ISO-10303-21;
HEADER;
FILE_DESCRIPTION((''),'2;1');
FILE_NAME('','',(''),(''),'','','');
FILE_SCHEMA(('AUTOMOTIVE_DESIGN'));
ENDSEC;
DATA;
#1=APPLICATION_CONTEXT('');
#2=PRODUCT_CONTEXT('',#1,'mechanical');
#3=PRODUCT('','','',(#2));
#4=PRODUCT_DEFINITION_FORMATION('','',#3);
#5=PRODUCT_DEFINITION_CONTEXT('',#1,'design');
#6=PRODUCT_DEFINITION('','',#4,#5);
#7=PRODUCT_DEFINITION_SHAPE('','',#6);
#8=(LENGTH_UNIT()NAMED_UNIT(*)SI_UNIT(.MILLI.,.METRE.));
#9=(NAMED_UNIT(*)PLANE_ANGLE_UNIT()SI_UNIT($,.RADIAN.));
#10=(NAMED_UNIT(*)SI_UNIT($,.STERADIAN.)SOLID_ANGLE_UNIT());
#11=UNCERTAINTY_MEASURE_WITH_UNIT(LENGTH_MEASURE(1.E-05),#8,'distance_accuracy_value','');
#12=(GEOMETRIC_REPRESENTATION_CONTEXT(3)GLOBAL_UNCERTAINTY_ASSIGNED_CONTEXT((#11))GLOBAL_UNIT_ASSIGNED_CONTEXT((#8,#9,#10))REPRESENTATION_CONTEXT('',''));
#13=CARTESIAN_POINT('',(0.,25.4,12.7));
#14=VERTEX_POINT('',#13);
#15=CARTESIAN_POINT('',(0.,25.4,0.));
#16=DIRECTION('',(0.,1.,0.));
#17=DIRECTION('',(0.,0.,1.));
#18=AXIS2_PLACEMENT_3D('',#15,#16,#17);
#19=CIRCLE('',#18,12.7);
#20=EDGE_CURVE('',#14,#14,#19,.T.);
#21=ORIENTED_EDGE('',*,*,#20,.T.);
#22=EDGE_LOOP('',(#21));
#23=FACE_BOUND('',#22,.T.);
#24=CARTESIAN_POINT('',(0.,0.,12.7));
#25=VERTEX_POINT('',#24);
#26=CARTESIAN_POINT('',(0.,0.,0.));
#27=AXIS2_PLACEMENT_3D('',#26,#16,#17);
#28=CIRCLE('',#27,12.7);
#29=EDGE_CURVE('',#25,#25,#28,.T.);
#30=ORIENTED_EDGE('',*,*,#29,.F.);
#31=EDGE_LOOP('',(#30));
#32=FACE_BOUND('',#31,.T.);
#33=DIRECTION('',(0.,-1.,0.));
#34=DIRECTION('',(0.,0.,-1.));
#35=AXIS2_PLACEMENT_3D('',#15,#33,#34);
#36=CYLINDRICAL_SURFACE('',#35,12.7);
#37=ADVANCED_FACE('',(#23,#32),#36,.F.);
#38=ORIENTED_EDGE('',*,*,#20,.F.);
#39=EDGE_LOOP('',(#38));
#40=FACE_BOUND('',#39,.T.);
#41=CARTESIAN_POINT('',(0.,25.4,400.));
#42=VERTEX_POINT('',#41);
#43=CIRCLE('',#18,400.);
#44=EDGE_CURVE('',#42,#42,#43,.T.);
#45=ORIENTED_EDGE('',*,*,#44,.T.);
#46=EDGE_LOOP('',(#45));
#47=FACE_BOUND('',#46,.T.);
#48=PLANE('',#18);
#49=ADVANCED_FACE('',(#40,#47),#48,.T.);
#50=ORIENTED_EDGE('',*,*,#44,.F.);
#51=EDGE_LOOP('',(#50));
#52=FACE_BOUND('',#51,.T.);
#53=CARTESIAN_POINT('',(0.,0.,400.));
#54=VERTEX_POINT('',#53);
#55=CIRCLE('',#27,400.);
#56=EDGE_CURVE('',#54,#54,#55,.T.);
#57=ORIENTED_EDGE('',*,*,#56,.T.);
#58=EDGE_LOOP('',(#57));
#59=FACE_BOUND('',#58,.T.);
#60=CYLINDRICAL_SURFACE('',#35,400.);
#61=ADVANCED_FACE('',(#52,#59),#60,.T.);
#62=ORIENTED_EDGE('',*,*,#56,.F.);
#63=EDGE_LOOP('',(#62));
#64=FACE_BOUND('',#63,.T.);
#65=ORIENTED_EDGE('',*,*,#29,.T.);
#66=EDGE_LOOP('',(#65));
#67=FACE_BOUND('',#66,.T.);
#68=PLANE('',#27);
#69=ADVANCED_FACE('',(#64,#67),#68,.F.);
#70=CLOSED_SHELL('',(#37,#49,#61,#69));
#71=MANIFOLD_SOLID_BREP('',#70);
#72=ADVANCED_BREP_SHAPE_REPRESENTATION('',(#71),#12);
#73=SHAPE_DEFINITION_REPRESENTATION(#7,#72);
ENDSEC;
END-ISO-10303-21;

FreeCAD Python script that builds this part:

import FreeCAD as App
import Part
import Sketcher

doc = App.newDocument("Part")
body = doc.addObject("PartDesign::Body", "Body")

# Sketch on XZ plane
sketch1 = body.newObject("Sketcher::SketchObject", "Sketch")
sketch1.AttachmentSupport = (doc.getObject("XZ_Plane"), [""])
sketch1.MapMode = "FlatFace"
sketch1.addGeometry(Part.Circle(App.Vector(0, 0, 0), App.Vector(0, 0, 1), 400), False)
sketch1.addGeometry(Part.Circle(App.Vector(0, 0, 0), App.Vector(0, 0, 1), 13), False)
sketch1.addConstraint(Sketcher.Constraint("Coincident", 0, 3, -1, 1))
sketch1.addConstraint(Sketcher.Constraint("Coincident", 1, 3, -1, 1))
sketch1.addConstraint(Sketcher.Constraint("Diameter", 0, 800.0))
sketch1.addConstraint(Sketcher.Constraint("Diameter", 1, 25.4))
pad1 = body.newObject("PartDesign::Pad", "Pad")
pad1.Profile = sketch1
pad1.Length = 25.4
pad1.Reversed = True

doc.recompute()
